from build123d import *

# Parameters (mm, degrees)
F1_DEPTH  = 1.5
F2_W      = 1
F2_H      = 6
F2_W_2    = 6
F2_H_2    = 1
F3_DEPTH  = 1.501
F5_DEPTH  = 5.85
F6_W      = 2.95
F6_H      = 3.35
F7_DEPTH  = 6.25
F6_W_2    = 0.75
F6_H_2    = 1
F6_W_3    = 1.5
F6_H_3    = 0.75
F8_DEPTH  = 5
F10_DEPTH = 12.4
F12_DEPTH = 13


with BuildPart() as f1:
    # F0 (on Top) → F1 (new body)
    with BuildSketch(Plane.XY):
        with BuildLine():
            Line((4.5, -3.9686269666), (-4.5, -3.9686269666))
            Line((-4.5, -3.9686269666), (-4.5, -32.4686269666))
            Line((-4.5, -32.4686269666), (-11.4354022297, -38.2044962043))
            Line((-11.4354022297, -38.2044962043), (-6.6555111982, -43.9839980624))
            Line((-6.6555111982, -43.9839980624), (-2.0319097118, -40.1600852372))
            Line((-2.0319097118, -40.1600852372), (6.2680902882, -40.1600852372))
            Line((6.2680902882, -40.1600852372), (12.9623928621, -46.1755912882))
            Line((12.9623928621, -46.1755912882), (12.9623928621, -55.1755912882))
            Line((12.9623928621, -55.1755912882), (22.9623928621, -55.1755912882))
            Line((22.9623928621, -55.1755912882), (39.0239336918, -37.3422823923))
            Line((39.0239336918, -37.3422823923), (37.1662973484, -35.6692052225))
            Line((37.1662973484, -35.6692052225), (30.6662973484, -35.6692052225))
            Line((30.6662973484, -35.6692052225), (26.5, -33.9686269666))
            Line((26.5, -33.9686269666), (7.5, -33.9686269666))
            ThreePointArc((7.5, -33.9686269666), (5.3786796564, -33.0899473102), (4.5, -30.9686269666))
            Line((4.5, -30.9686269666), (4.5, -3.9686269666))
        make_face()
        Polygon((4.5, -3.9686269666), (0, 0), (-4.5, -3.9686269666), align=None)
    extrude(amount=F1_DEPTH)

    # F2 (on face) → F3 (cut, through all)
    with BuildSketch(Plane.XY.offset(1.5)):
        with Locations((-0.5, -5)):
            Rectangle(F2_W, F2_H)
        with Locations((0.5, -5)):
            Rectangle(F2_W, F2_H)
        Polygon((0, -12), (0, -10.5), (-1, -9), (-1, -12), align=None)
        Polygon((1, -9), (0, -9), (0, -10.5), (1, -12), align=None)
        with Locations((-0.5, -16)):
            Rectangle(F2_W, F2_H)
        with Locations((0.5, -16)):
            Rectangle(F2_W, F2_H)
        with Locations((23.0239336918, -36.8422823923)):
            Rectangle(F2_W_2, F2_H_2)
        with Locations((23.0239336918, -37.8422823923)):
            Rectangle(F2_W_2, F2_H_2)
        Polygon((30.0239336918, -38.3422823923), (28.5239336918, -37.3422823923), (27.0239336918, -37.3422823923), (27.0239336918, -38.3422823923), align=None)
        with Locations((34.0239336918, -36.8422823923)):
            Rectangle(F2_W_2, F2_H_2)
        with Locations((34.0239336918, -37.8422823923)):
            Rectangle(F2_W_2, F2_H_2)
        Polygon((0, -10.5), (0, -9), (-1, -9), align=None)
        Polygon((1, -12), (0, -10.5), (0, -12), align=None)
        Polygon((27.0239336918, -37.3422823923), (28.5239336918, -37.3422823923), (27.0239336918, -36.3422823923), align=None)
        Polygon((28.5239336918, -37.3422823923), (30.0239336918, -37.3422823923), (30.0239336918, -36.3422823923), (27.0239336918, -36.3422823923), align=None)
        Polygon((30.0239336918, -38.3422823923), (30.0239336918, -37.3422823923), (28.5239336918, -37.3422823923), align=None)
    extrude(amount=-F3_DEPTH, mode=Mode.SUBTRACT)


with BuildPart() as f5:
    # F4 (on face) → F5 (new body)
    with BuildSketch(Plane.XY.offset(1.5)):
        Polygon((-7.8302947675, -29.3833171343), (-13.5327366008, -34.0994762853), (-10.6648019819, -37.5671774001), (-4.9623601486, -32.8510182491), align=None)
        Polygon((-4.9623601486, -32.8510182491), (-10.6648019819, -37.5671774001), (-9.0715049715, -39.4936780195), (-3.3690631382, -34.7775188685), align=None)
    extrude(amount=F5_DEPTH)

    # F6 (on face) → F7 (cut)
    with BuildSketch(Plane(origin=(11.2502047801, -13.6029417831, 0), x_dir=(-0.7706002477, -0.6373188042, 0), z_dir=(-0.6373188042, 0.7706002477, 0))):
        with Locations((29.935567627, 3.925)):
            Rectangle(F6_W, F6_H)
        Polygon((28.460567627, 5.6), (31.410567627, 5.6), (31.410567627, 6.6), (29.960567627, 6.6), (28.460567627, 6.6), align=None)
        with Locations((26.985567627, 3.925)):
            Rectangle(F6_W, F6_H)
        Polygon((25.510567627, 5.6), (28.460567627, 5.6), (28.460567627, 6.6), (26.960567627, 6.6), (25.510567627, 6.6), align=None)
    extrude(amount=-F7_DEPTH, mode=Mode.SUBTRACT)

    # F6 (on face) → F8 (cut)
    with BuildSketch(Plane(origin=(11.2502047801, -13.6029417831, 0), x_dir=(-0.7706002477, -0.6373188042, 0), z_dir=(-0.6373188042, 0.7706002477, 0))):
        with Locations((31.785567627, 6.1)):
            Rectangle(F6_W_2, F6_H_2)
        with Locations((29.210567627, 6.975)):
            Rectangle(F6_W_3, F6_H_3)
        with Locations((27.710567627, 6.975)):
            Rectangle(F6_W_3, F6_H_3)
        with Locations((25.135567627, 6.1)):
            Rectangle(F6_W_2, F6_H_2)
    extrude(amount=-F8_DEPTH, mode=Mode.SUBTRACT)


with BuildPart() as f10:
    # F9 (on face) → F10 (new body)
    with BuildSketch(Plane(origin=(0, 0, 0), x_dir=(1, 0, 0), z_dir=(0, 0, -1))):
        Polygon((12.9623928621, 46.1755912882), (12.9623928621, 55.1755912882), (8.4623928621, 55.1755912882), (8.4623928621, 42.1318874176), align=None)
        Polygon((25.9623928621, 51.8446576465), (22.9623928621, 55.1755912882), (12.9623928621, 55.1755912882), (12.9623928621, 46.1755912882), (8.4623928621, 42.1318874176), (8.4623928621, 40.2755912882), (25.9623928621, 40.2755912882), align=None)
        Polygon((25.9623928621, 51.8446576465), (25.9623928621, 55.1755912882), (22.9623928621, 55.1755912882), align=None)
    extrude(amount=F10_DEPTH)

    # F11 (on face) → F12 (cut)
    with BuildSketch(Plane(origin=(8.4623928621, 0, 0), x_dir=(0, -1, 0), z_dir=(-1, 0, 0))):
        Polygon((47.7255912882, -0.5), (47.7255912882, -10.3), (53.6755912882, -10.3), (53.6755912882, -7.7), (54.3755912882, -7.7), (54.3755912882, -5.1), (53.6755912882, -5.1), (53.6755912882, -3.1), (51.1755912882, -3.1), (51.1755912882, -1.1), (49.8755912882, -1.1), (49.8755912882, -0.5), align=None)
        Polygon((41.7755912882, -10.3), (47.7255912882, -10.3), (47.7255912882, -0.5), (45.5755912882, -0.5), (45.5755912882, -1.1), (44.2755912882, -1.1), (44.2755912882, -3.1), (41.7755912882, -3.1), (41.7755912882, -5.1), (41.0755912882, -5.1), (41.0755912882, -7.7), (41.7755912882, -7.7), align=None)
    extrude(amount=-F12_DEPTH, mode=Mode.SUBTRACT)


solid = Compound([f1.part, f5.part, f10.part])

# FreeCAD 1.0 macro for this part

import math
import FreeCAD as App
import Part
import Sketcher

V = App.Vector


def add_polygon(sketch, points):
    """Adds a closed chain of lines whose ends are joined by coincident constraints."""
    first, n = sketch.GeometryCount, len(points)
    for a, b in zip(points, points[1:] + points[:1]):
        sketch.addGeometry(Part.LineSegment(App.Vector(*a, 0), App.Vector(*b, 0)), False)
    for i in range(n):
        sketch.addConstraint(Sketcher.Constraint("Coincident", first + i, 2, first + (i + 1) % n, 1))

doc = App.newDocument("Part")
params = doc.addObject("Spreadsheet::Sheet", "Params")
for row, (alias, value) in enumerate([
    ("sketch1_radius", "3 mm"),
    ("sketch1_width", "10 mm"),
    ("sketch1_width2", "19 mm"),
    ("sketch1_height", "9 mm"),
    ("sketch1_height2", "27 mm"),
    ("pad1_length", "1.5 mm"),
    ("sketch2_width", "2 mm"),
    ("sketch2_width2", "6 mm"),
    ("sketch2_width3", "3 mm"),
    ("sketch3_length", "7.4 mm"),
    ("sketch3_length2", "4.5 mm"),
    ("sketch3_length3", "2.5 mm"),
    ("pad2_length", "5.85 mm"),
    ("sketch4_width", "5.9 mm"),
    ("sketch4_height", "4.35 mm"),
    ("pocket2_length", "6.25 mm"),
    ("sketch5_width", "3 mm"),
    ("sketch5_height", "1 mm"),
    ("sketch5_width2", "0.75 mm"),
    ("pocket3_length", "5 mm"),
    ("sketch6_width", "17.5 mm"),
    ("sketch6_height", "14.9 mm"),
    ("pad3_length", "12.4 mm"),
    ("sketch7_height", "2 mm"),
    ("sketch7_width", "0.7 mm"),
    ("sketch7_width2", "2.5 mm"),
    ("sketch7_width3", "1.3 mm"),
    ("sketch7_width4", "4.3 mm"),
    ("pocket4_length", "13 mm"),
], start=1):
    params.set(f"A{row}", alias)
    params.set(f"B{row}", "=" + value)
    params.setAlias(f"B{row}", alias)

body = doc.addObject("PartDesign::Body", "Body")

sketch1 = body.newObject("Sketcher::SketchObject", "Sketch")
sketch1.AttachmentSupport = (doc.getObject("XY_Plane"), [""])
sketch1.MapMode = "FlatFace"
sketch1.addGeometry([
    Part.LineSegment(V(-4.5, -3.968627, 0), V(-4.5, -32.468627, 0)),
    Part.LineSegment(V(-4.5, -32.468627, 0), V(-11.435402, -38.204496, 0)),
    Part.LineSegment(V(-11.435402, -38.204496, 0), V(-6.655511, -43.983998, 0)),
    Part.LineSegment(V(-6.655511, -43.983998, 0), V(-2.03191, -40.160085, 0)),
    Part.LineSegment(V(-2.03191, -40.160085, 0), V(6.26809, -40.160085, 0)),
    Part.LineSegment(V(6.26809, -40.160085, 0), V(12.962393, -46.175591, 0)),
    Part.LineSegment(V(12.962393, -46.175591, 0), V(12.962393, -55.175591, 0)),
    Part.LineSegment(V(12.962393, -55.175591, 0), V(22.962393, -55.175591, 0)),
    Part.LineSegment(V(22.962393, -55.175591, 0), V(39.023934, -37.342282, 0)),
    Part.LineSegment(V(39.023934, -37.342282, 0), V(37.166297, -35.669205, 0)),
    Part.LineSegment(V(37.166297, -35.669205, 0), V(30.666297, -35.669205, 0)),
    Part.LineSegment(V(30.666297, -35.669205, 0), V(26.5, -33.968627, 0)),
    Part.LineSegment(V(26.5, -33.968627, 0), V(7.5, -33.968627, 0)),
    Part.ArcOfCircle(Part.Circle(V(7.5, -30.968627, 0), V(0, 0, 1), 3), math.radians(180), math.radians(270)),
    Part.LineSegment(V(4.5, -30.968627, 0), V(4.5, -3.968627, 0)),
    Part.LineSegment(V(4.5, -3.968627, 0), V(0, 0, 0)),
    Part.LineSegment(V(0, 0, 0), V(-4.5, -3.968627, 0)),
], False)
sketch1.addConstraint([
    Sketcher.Constraint("Coincident", 0, 2, 1, 1),
    Sketcher.Constraint("Coincident", 1, 2, 2, 1),
    Sketcher.Constraint("Coincident", 2, 2, 3, 1),
    Sketcher.Constraint("Coincident", 3, 2, 4, 1),
    Sketcher.Constraint("Coincident", 4, 2, 5, 1),
    Sketcher.Constraint("Coincident", 5, 2, 6, 1),
    Sketcher.Constraint("Coincident", 6, 2, 7, 1),
    Sketcher.Constraint("Coincident", 7, 2, 8, 1),
    Sketcher.Constraint("Coincident", 8, 2, 9, 1),
    Sketcher.Constraint("Coincident", 9, 2, 10, 1),
    Sketcher.Constraint("Coincident", 10, 2, 11, 1),
    Sketcher.Constraint("Coincident", 11, 2, 12, 1),
    Sketcher.Constraint("Tangent", 12, 2, 13, 2),
    Sketcher.Constraint("Tangent", 13, 1, 14, 1),
    Sketcher.Constraint("Coincident", 14, 2, 15, 1),
    Sketcher.Constraint("Coincident", 15, 2, 16, 1),
    Sketcher.Constraint("Coincident", 16, 2, 0, 1),
    Sketcher.Constraint("Vertical", 0),
    Sketcher.Constraint("Horizontal", 4),
    Sketcher.Constraint("Vertical", 6),
    Sketcher.Constraint("Horizontal", 7),
    Sketcher.Constraint("Horizontal", 10),
    Sketcher.Constraint("Horizontal", 12),
    Sketcher.Constraint("Vertical", 14),
    Sketcher.Constraint("Coincident", 15, 2, -1, 1),
    Sketcher.Constraint("Symmetric", 14, 2, 16, 2, -2),
    Sketcher.Constraint("Perpendicular", 1, 2),
    Sketcher.Constraint("Perpendicular", 2, 3),
    Sketcher.Constraint("Perpendicular", 8, 9),
    Sketcher.Constraint("Equal", 1, 5),
    Sketcher.Constraint("Equal", 3, 15),
    Sketcher.Constraint("Radius", 13, 3.0),
    Sketcher.Constraint("DistanceX", 7, 1, 7, 2, 10.0),
    Sketcher.Constraint("DistanceX", 12, 2, 12, 1, 19.0),
    Sketcher.Constraint("DistanceY", 6, 2, 6, 1, 9.0),
    Sketcher.Constraint("DistanceY", 14, 1, 14, 2, 27.0),
    Sketcher.Constraint("Distance", 1, 9.0),
    Sketcher.Constraint("Distance", 3, 6.0),
    Sketcher.Constraint("Distance", 8, 24.0),
    Sketcher.Constraint("DistanceX", 4, 1, 4, 2, 8.3),
    Sketcher.Constraint("DistanceX", 10, 2, 10, 1, 6.5),
    Sketcher.Constraint("DistanceY", 0, 2, 0, 1, 28.5),
    Sketcher.Constraint("DistanceX", 0, 2, 13, 3, 12.0),
    Sketcher.Constraint("Distance", 2, 7.5),
    Sketcher.Constraint("Distance", 9, 2.5),
    Sketcher.Constraint("Distance", 11, 4.5),
    Sketcher.Constraint("DistanceY", 2, 2, -1, 1, 43.983998),
    Sketcher.Constraint("DistanceY", 5, 2, -1, 1, 46.175591),
])
sketch1.setExpression("Constraints[31]", "Params.sketch1_radius")
sketch1.setExpression("Constraints[32]", "Params.sketch1_width")
sketch1.setExpression("Constraints[33]", "Params.sketch1_width2")
sketch1.setExpression("Constraints[34]", "Params.sketch1_height")
sketch1.setExpression("Constraints[35]", "Params.sketch1_height2")
pad1 = body.newObject("PartDesign::Pad", "Pad")
pad1.Profile = sketch1
pad1.setExpression("Length", "Params.pad1_length")

sketch2 = body.newObject("Sketcher::SketchObject", "Sketch001")
sketch2.AttachmentSupport = (doc.getObject("XY_Plane"), [""])
sketch2.MapMode = "FlatFace"
sketch2.AttachmentOffset = App.Placement(V(0, 0, 1.5), App.Rotation())
add_polygon(sketch2, [(-1, -2), (-1, -8), (1, -8), (1, -2)])
add_polygon(sketch2, [(1, -12), (1, -9), (-1, -9), (-1, -12)])
add_polygon(sketch2, [(-1, -13), (-1, -19), (1, -19), (1, -13)])
add_polygon(sketch2, [(20.023934, -36.342282), (20.023934, -38.342282), (26.023934, -38.342282), (26.023934, -36.342282)])
add_polygon(sketch2, [(30.023934, -36.342282), (27.023934, -36.342282), (27.023934, -38.342282), (30.023934, -38.342282)])
add_polygon(sketch2, [(31.023934, -36.342282), (31.023934, -38.342282), (37.023934, -38.342282), (37.023934, -36.342282)])
sketch2.addConstraint([
    Sketcher.Constraint("Vertical", 0),
    Sketcher.Constraint("Horizontal", 1),
    Sketcher.Constraint("Vertical", 2),
    Sketcher.Constraint("Horizontal", 3),
    Sketcher.Constraint("Vertical", 4),
    Sketcher.Constraint("Horizontal", 5),
    Sketcher.Constraint("Vertical", 6),
    Sketcher.Constraint("Horizontal", 7),
    Sketcher.Constraint("Vertical", 8),
    Sketcher.Constraint("Horizontal", 9),
    Sketcher.Constraint("Vertical", 10),
    Sketcher.Constraint("Horizontal", 11),
    Sketcher.Constraint("Vertical", 12),
    Sketcher.Constraint("Horizontal", 13),
    Sketcher.Constraint("Vertical", 14),
    Sketcher.Constraint("Horizontal", 15),
    Sketcher.Constraint("Horizontal", 16),
    Sketcher.Constraint("Vertical", 17),
    Sketcher.Constraint("Horizontal", 18),
    Sketcher.Constraint("Vertical", 19),
    Sketcher.Constraint("Vertical", 20),
    Sketcher.Constraint("Horizontal", 21),
    Sketcher.Constraint("Vertical", 22),
    Sketcher.Constraint("Horizontal", 23),
    Sketcher.Constraint("Horizontal", 15, 2, 16, 2),
    Sketcher.Constraint("Horizontal", 13, 2, 17, 2),
    Sketcher.Constraint("Horizontal", 18, 2, 20, 2),
    Sketcher.Constraint("Horizontal", 19, 2, 22, 2),
    Sketcher.Constraint("Vertical", 2, 2, 4, 2),
    Sketcher.Constraint("Vertical", 3, 2, 5, 2),
    Sketcher.Constraint("Vertical", 6, 2, 8, 2),
    Sketcher.Constraint("Vertical", 7, 2, 9, 2),
    Sketcher.Constraint("Equal", 15, 21),
    Sketcher.Constraint("Equal", 23, 0),
    Sketcher.Constraint("Equal", 18, 4),
    Sketcher.Constraint("Equal", 2, 8),
    Sketcher.Constraint("Equal", 11, 12),
    Sketcher.Constraint("DistanceX", 1, 1, 1, 2, 2.0),
    Sketcher.Constraint("DistanceX", 13, 1, 13, 2, 6.0),
    Sketcher.Constraint("DistanceX", 16, 2, 16, 1, 3.0),
    Sketcher.Constraint("DistanceX", 0, 2, -1, 1, 1.0),
    Sketcher.Constraint("DistanceY", 0, 2, -1, 1, 8.0),
    Sketcher.Constraint("DistanceY", 4, 2, -1, 1, 9.0),
    Sketcher.Constraint("DistanceY", 8, 2, -1, 1, 19.0),
    Sketcher.Constraint("DistanceX", 14, 2, 16, 2, 1.0),
    Sketcher.Constraint("DistanceX", 18, 2, 20, 2, 1.0),
    Sketcher.Constraint("DistanceX", -1, 1, 12, 2, 20.023934),
    Sketcher.Constraint("DistanceY", 12, 2, -1, 1, 38.342282),
])
sketch2.setExpression("Constraints[61]", "Params.sketch2_width")
sketch2.setExpression("Constraints[62]", "Params.sketch2_width2")
sketch2.setExpression("Constraints[63]", "Params.sketch2_width3")
pocket1 = body.newObject("PartDesign::Pocket", "Pocket")
pocket1.Profile = sketch2
pocket1.Type = "ThroughAll"
body2 = doc.addObject("PartDesign::Body", "Body001")

sketch3 = body2.newObject("Sketcher::SketchObject", "Sketch002")
sketch3.AttachmentSupport = (doc.getObject("XY_Plane001"), [""])
sketch3.MapMode = "FlatFace"
sketch3.AttachmentOffset = App.Placement(V(0, 0, 1.5), App.Rotation())
add_polygon(sketch3, [(-7.830295, -29.383317), (-13.532737, -34.099476), (-10.664802, -37.567177), (-9.071505, -39.493678), (-3.369063, -34.777519), (-4.96236, -32.851018)])
sketch3.addConstraint([
    Sketcher.Constraint("Perpendicular", 0, 1),
    Sketcher.Constraint("Parallel", 1, 2),
    Sketcher.Constraint("Perpendicular", 2, 3),
    Sketcher.Constraint("Perpendicular", 3, 4),
    Sketcher.Constraint("Parallel", 4, 5),
    Sketcher.Constraint("Equal", 2, 4),
    Sketcher.Constraint("Distance", 0, 7.4),
    Sketcher.Constraint("Distance", 1, 4.5),
    Sketcher.Constraint("Distance", 2, 2.5),
    Sketcher.Constraint("DistanceX", 1, 2, -1, 1, 10.664802),
    Sketcher.Constraint("DistanceY", 1, 2, 0, 2, 3.467701),
    Sketcher.Constraint("DistanceY", 2, 2, -1, 1, 39.493678),
])
sketch3.setExpression("Constraints[12]", "Params.sketch3_length")
sketch3.setExpression("Constraints[13]", "Params.sketch3_length2")
sketch3.setExpression("Constraints[14]", "Params.sketch3_length3")
pad2 = body2.newObject("PartDesign::Pad", "Pad001")
pad2.Profile = sketch3
pad2.setExpression("Length", "Params.pad2_length")

sketch4 = body2.newObject("Sketcher::SketchObject", "Sketch003")
sketch4.Placement = App.Placement(V(11.250205, -13.602942, 0), App.Rotation(V(-0.770600248, -0.637318804, 0), V(0, 0, 1), V(-0.637318804, 0.770600248, 0), "ZXY"))
add_polygon(sketch4, [(31.410568, 2.25), (31.410568, 6.6), (25.510568, 6.6), (25.510568, 2.25)])
sketch4.addConstraint([
    Sketcher.Constraint("Vertical", 0),
    Sketcher.Constraint("Horizontal", 1),
    Sketcher.Constraint("Vertical", 2),
    Sketcher.Constraint("Horizontal", 3),
    Sketcher.Constraint("DistanceX", 1, 2, 1, 1, 5.9),
    Sketcher.Constraint("DistanceY", 0, 1, 0, 2, 4.35),
    Sketcher.Constraint("DistanceY", -1, 1, 0, 2, 6.6),
    Sketcher.Constraint("DistanceX", -1, 1, 0, 2, 31.410568),
])
sketch4.setExpression("Constraints[8]", "Params.sketch4_width")
sketch4.setExpression("Constraints[9]", "Params.sketch4_height")
pocket2 = body2.newObject("PartDesign::Pocket", "Pocket001")
pocket2.Profile = sketch4
pocket2.setExpression("Length", "Params.pocket2_length")

sketch5 = body2.newObject("Sketcher::SketchObject", "Sketch004")
sketch5.Placement = App.Placement(V(11.250205, -13.602942, 0), App.Rotation(V(-0.770600248, -0.637318804, 0), V(0, 0, 1), V(-0.637318804, 0.770600248, 0), "ZXY"))
add_polygon(sketch5, [(31.410568, 6.6), (31.410568, 5.6), (32.160568, 5.6), (32.160568, 6.6)])
add_polygon(sketch5, [(29.960568, 6.6), (29.960568, 7.35), (26.960568, 7.35), (26.960568, 6.6)])
add_polygon(sketch5, [(24.760568, 6.6), (24.760568, 5.6), (25.510568, 5.6), (25.510568, 6.6)])
sketch5.addConstraint([
    Sketcher.Constraint("Vertical", 0),
    Sketcher.Constraint("Horizontal", 1),
    Sketcher.Constraint("Vertical", 2),
    Sketcher.Constraint("Horizontal", 3),
    Sketcher.Constraint("Vertical", 4),
    Sketcher.Constraint("Horizontal", 5),
    Sketcher.Constraint("Vertical", 6),
    Sketcher.Constraint("Horizontal", 7),
    Sketcher.Constraint("Vertical", 8),
    Sketcher.Constraint("Horizontal", 9),
    Sketcher.Constraint("Vertical", 10),
    Sketcher.Constraint("Horizontal", 11),
    Sketcher.Constraint("Horizontal", 3, 2, 6, 2),
    Sketcher.Constraint("Horizontal", 1, 2, 8, 2),
    Sketcher.Constraint("Horizontal", 7, 2, 10, 2),
    Sketcher.Constraint("Equal", 3, 9),
    Sketcher.Constraint("Equal", 11, 4),
    Sketcher.Constraint("DistanceX", 5, 2, 5, 1, 3.0),
    Sketcher.Constraint("DistanceY", 0, 2, 0, 1, 1.0),
    Sketcher.Constraint("DistanceX", 1, 1, 1, 2, 0.75),
    Sketcher.Constraint("DistanceY", -1, 1, 0, 2, 5.6),
    Sketcher.Constraint("DistanceX", 4, 2, 2, 2, 2.2),
    Sketcher.Constraint("DistanceX", 8, 2, 6, 2, 2.2),
    Sketcher.Constraint("DistanceX", -1, 1, 0, 2, 31.410568),
])
sketch5.setExpression("Constraints[29]", "Params.sketch5_width")
sketch5.setExpression("Constraints[30]", "Params.sketch5_height")
sketch5.setExpression("Constraints[31]", "Params.sketch5_width2")
pocket3 = body2.newObject("PartDesign::Pocket", "Pocket002")
pocket3.Profile = sketch5
pocket3.setExpression("Length", "Params.pocket3_length")
body3 = doc.addObject("PartDesign::Body", "Body002")

sketch6 = body3.newObject("Sketcher::SketchObject", "Sketch005")
sketch6.AttachmentSupport = (doc.getObject("XY_Plane002"), [""])
sketch6.MapMode = "FlatFace"
add_polygon(sketch6, [(8.462393, -55.175591), (8.462393, -40.275591), (25.962393, -40.275591), (25.962393, -55.175591)])
sketch6.addConstraint([
    Sketcher.Constraint("Vertical", 0),
    Sketcher.Constraint("Horizontal", 1),
    Sketcher.Constraint("Vertical", 2),
    Sketcher.Constraint("Horizontal", 3),
    Sketcher.Constraint("DistanceX", 1, 1, 1, 2, 17.5),
    Sketcher.Constraint("DistanceY", 0, 1, 0, 2, 14.9),
    Sketcher.Constraint("DistanceY", 0, 2, -1, 1, 40.275591),
    Sketcher.Constraint("DistanceX", -1, 1, 0, 2, 8.462393),
])
sketch6.setExpression("Constraints[8]", "Params.sketch6_width")
sketch6.setExpression("Constraints[9]", "Params.sketch6_height")
pad3 = body3.newObject("PartDesign::Pad", "Pad002")
pad3.Profile = sketch6
pad3.setExpression("Length", "Params.pad3_length")
pad3.Reversed = True

sketch7 = body3.newObject("Sketcher::SketchObject", "Sketch006")
sketch7.AttachmentSupport = (doc.getObject("YZ_Plane002"), [""])
sketch7.MapMode = "FlatFace"
sketch7.AttachmentOffset = App.Placement(V(0, 0, 8.462393), App.Rotation())
add_polygon(sketch7, [(-53.675591, -10.3), (-53.675591, -7.7), (-54.375591, -7.7), (-54.375591, -5.1), (-53.675591, -5.1), (-53.675591, -3.1), (-51.175591, -3.1), (-51.175591, -1.1), (-49.875591, -1.1), (-49.875591, -0.5), (-45.575591, -0.5), (-45.575591, -1.1), (-44.275591, -1.1), (-44.275591, -3.1), (-41.775591, -3.1), (-41.775591, -5.1), (-41.075591, -5.1), (-41.075591, -7.7), (-41.775591, -7.7), (-41.775591, -10.3)])
sketch7.addConstraint([
    Sketcher.Constraint("Vertical", 0),
    Sketcher.Constraint("Horizontal", 1),
    Sketcher.Constraint("Vertical", 2),
    Sketcher.Constraint("Horizontal", 3),
    Sketcher.Constraint("Vertical", 4),
    Sketcher.Constraint("Horizontal", 5),
    Sketcher.Constraint("Vertical", 6),
    Sketcher.Constraint("Horizontal", 7),
    Sketcher.Constraint("Vertical", 8),
    Sketcher.Constraint("Horizontal", 9),
    Sketcher.Constraint("Vertical", 10),
    Sketcher.Constraint("Horizontal", 11),
    Sketcher.Constraint("Vertical", 12),
    Sketcher.Constraint("Horizontal", 13),
    Sketcher.Constraint("Vertical", 14),
    Sketcher.Constraint("Horizontal", 15),
    Sketcher.Constraint("Vertical", 16),
    Sketcher.Constraint("Horizontal", 17),
    Sketcher.Constraint("Vertical", 18),
    Sketcher.Constraint("Horizontal", 19),
    Sketcher.Constraint("Horizontal", 7, 2, 10, 2),
    Sketcher.Constraint("Horizontal", 5, 2, 12, 2),
    Sketcher.Constraint("Horizontal", 3, 2, 14, 2),
    Sketcher.Constraint("Horizontal", 1, 2, 16, 2),
    Sketcher.Constraint("Vertical", 0, 2, 3, 2),
    Sketcher.Constraint("Vertical", 14, 2, 17, 2),
    Sketcher.Constraint("Equal", 7, 11),
    Sketcher.Constraint("Equal", 5, 13),
    Sketcher.Constraint("Equal", 3, 15),
    Sketcher.Constraint("Equal", 0, 2),
    Sketcher.Constraint("Equal", 4, 6),
    Sketcher.Constraint("DistanceY", 4, 1, 4, 2, 2.0),
    Sketcher.Constraint("DistanceX", 1, 2, 1, 1, 0.7),
    Sketcher.Constraint("DistanceX", 5, 1, 5, 2, 2.5),
    Sketcher.Constraint("DistanceX", 7, 1, 7, 2, 1.3),
    Sketcher.Constraint("DistanceX", 9, 1, 9, 2, 4.3),
    Sketcher.Constraint("DistanceY", 0, 1, 0, 2, 2.6),
    Sketcher.Constraint("DistanceY", 8, 1, 8, 2, 0.6),
    Sketcher.Constraint("DistanceY", 0, 2, -1, 1, 7.7),
    Sketcher.Constraint("DistanceX", 0, 2, -1, 1, 53.675591),
])
sketch7.setExpression("Constraints[51]", "Params.sketch7_height")
sketch7.setExpression("Constraints[52]", "Params.sketch7_width")
sketch7.setExpression("Constraints[53]", "Params.sketch7_width2")
sketch7.setExpression("Constraints[54]", "Params.sketch7_width3")
sketch7.setExpression("Constraints[55]", "Params.sketch7_width4")
pocket4 = body3.newObject("PartDesign::Pocket", "Pocket003")
pocket4.Profile = sketch7
pocket4.setExpression("Length", "Params.pocket4_length")
pocket4.Reversed = True

doc.recompute()
